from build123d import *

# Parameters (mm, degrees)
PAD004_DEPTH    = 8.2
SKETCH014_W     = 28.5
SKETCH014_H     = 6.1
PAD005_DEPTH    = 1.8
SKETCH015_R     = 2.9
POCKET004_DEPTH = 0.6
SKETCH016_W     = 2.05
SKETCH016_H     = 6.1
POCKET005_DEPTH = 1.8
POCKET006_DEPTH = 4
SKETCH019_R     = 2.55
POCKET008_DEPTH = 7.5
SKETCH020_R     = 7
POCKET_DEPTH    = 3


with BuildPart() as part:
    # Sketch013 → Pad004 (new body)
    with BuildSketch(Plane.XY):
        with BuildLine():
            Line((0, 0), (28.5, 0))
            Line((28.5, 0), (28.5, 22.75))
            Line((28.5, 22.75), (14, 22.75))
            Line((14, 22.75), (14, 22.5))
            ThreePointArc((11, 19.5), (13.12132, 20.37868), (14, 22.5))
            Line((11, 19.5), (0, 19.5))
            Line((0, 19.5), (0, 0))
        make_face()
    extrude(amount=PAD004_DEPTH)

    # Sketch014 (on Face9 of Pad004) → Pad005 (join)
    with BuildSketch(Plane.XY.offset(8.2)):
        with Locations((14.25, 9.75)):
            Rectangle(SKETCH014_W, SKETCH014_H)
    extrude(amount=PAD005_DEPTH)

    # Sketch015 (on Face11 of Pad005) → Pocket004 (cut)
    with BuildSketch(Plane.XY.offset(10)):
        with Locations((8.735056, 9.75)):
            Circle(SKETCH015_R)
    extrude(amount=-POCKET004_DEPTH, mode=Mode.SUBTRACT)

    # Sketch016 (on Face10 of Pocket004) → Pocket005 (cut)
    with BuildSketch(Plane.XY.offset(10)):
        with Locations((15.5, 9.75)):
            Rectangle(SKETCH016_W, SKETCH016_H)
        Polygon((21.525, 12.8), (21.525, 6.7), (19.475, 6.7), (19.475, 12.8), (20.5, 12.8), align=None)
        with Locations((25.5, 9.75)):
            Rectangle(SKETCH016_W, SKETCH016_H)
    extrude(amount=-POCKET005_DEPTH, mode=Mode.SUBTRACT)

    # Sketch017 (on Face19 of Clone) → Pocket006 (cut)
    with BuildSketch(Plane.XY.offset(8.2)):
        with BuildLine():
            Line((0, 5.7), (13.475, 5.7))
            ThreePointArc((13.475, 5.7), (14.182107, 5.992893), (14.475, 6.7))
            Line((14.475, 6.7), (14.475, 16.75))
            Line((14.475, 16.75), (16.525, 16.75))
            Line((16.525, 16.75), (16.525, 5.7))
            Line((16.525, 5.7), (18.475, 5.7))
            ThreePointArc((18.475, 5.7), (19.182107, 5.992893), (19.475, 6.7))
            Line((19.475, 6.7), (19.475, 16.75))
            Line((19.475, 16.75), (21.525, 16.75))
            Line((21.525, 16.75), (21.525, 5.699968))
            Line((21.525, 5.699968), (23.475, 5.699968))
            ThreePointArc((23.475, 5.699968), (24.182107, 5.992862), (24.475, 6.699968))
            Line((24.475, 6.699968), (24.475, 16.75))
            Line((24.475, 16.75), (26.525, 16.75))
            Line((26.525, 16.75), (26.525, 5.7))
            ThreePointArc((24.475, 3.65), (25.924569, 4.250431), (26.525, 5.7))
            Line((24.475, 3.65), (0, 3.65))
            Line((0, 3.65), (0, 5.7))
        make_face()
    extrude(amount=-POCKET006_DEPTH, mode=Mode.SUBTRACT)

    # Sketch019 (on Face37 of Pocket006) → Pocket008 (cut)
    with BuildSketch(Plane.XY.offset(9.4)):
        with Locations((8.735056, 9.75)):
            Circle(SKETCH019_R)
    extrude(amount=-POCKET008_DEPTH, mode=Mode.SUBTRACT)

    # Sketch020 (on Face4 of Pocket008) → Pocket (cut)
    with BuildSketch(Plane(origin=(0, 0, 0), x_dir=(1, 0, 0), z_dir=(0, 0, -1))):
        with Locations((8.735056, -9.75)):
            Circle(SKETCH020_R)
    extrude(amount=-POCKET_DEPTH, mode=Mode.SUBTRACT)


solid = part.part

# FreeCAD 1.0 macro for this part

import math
import FreeCAD as App
import Part
import Sketcher
from FreeCAD import Vector

doc = App.newDocument("Part")
params = doc.addObject("Spreadsheet::Sheet", "Params")
for row, (alias, value) in enumerate([
    ("sketch1_radius", "3.000001 mm"),
    ("sketch1_width", "11 mm"),
    ("sketch1_width2", "28.5 mm"),
    ("sketch1_height", "19.5 mm"),
    ("sketch1_height2", "22.75 mm"),
    ("pad1_length", "8.2 mm"),
    ("sketch2_width", "28.5 mm"),
    ("sketch2_height", "6.1 mm"),
    ("pad2_length", "1.8 mm"),
    ("sketch3_diameter", "5.8 mm"),
    ("pocket1_length", "0.6 mm"),
    ("sketch4_height", "6.1 mm"),
    ("sketch4_width", "2.05 mm"),
    ("pocket2_length", "1.8 mm"),
    ("sketch5_radius", "1.000001 mm"),
    ("sketch5_radius2", "2.05 mm"),
    ("sketch5_height", "11.05 mm"),
    ("pocket3_length", "4 mm"),
    ("sketch6_diameter", "5.1 mm"),
    ("pocket4_length", "7.5 mm"),
    ("sketch7_diameter", "14 mm"),
    ("pocket5_length", "3 mm"),
], start=1):
    params.set(f"A{row}", alias)
    params.set(f"B{row}", "=" + value)
    params.setAlias(f"B{row}", alias)

body = doc.addObject("PartDesign::Body", "Body")

sketch1 = body.newObject("Sketcher::SketchObject", "Sketch")
sketch1.AttachmentSupport = (doc.getObject("XY_Plane"), [""])
sketch1.MapMode = "FlatFace"
sketch1.addGeometry(Part.LineSegment(Vector(0, 0, 0), Vector(28.5, 0, 0)), False)
sketch1.addGeometry(Part.LineSegment(Vector(28.5, 0, 0), Vector(28.5, 22.75, 0)), False)
sketch1.addGeometry(Part.LineSegment(Vector(28.5, 22.75, 0), Vector(14, 22.75, 0)), False)
sketch1.addGeometry(Part.LineSegment(Vector(14, 22.75, 0), Vector(14, 22.5, 0)), False)
sketch1.addGeometry(Part.ArcOfCircle(Part.Circle(Vector(10.999999, 22.500001, 0), Vector(0, 0, 1), 3.000001), math.radians(-89.999978), math.radians(-0.000022)), False)
sketch1.addGeometry(Part.LineSegment(Vector(11, 19.5, 0), Vector(0, 19.5, 0)), False)
sketch1.addGeometry(Part.LineSegment(Vector(0, 19.5, 0), Vector(0, 0, 0)), False)
sketch1.addConstraint(Sketcher.Constraint("Coincident", 0, 2, 1, 1))
sketch1.addConstraint(Sketcher.Constraint("Coincident", 1, 2, 2, 1))
sketch1.addConstraint(Sketcher.Constraint("Coincident", 2, 2, 3, 1))
sketch1.addConstraint(Sketcher.Constraint("Tangent", 3, 2, 4, 2))
sketch1.addConstraint(Sketcher.Constraint("Tangent", 4, 1, 5, 1))
sketch1.addConstraint(Sketcher.Constraint("Coincident", 5, 2, 6, 1))
sketch1.addConstraint(Sketcher.Constraint("Coincident", 6, 2, 0, 1))
sketch1.addConstraint(Sketcher.Constraint("Horizontal", 0))
sketch1.addConstraint(Sketcher.Constraint("Vertical", 1))
sketch1.addConstraint(Sketcher.Constraint("Horizontal", 2))
sketch1.addConstraint(Sketcher.Constraint("Vertical", 3))
sketch1.addConstraint(Sketcher.Constraint("Horizontal", 5))
sketch1.addConstraint(Sketcher.Constraint("Vertical", 6))
sketch1.addConstraint(Sketcher.Constraint("Coincident", 6, 2, -1, 1))
sketch1.addConstraint(Sketcher.Constraint("Radius", 4, 3.000001))
sketch1.addConstraint(Sketcher.Constraint("DistanceX", 5, 2, 5, 1, 11.0))
sketch1.addConstraint(Sketcher.Constraint("DistanceX", 0, 1, 0, 2, 28.5))
sketch1.addConstraint(Sketcher.Constraint("DistanceY", 6, 2, 6, 1, 19.5))
sketch1.addConstraint(Sketcher.Constraint("DistanceY", 1, 1, 1, 2, 22.75))
sketch1.setExpression("Constraints[14]", "Params.sketch1_radius")
sketch1.setExpression("Constraints[15]", "Params.sketch1_width")
sketch1.setExpression("Constraints[16]", "Params.sketch1_width2")
sketch1.setExpression("Constraints[17]", "Params.sketch1_height")
sketch1.setExpression("Constraints[18]", "Params.sketch1_height2")
pad1 = body.newObject("PartDesign::Pad", "Pad")
pad1.Profile = sketch1
pad1.setExpression("Length", "Params.pad1_length")

sketch2 = body.newObject("Sketcher::SketchObject", "Sketch001")
sketch2.AttachmentSupport = (doc.getObject("XY_Plane"), [""])
sketch2.MapMode = "FlatFace"
sketch2.AttachmentOffset = App.Placement(Vector(0, 0, 8.2), App.Rotation())
sketch2.addGeometry(Part.LineSegment(Vector(0, 12.8, 0), Vector(0, 6.7, 0)), False)
sketch2.addGeometry(Part.LineSegment(Vector(0, 6.7, 0), Vector(28.5, 6.7, 0)), False)
sketch2.addGeometry(Part.LineSegment(Vector(28.5, 6.7, 0), Vector(28.5, 12.8, 0)), False)
sketch2.addGeometry(Part.LineSegment(Vector(28.5, 12.8, 0), Vector(0, 12.8, 0)), False)
sketch2.addConstraint(Sketcher.Constraint("Coincident", 0, 2, 1, 1))
sketch2.addConstraint(Sketcher.Constraint("Coincident", 1, 2, 2, 1))
sketch2.addConstraint(Sketcher.Constraint("Coincident", 2, 2, 3, 1))
sketch2.addConstraint(Sketcher.Constraint("Coincident", 3, 2, 0, 1))
sketch2.addConstraint(Sketcher.Constraint("Vertical", 0))
sketch2.addConstraint(Sketcher.Constraint("Horizontal", 1))
sketch2.addConstraint(Sketcher.Constraint("Vertical", 2))
sketch2.addConstraint(Sketcher.Constraint("Horizontal", 3))
sketch2.addConstraint(Sketcher.Constraint("PointOnObject", 0, 2, -2))
sketch2.addConstraint(Sketcher.Constraint("DistanceX", 1, 1, 1, 2, 28.5))
sketch2.addConstraint(Sketcher.Constraint("DistanceY", 0, 2, 0, 1, 6.1))
sketch2.addConstraint(Sketcher.Constraint("DistanceY", -1, 1, 0, 2, 6.7))
sketch2.setExpression("Constraints[9]", "Params.sketch2_width")
sketch2.setExpression("Constraints[10]", "Params.sketch2_height")
pad2 = body.newObject("PartDesign::Pad", "Pad001")
pad2.Profile = sketch2
pad2.setExpression("Length", "Params.pad2_length")

sketch3 = body.newObject("Sketcher::SketchObject", "Sketch002")
sketch3.AttachmentSupport = (doc.getObject("XY_Plane"), [""])
sketch3.MapMode = "FlatFace"
sketch3.AttachmentOffset = App.Placement(Vector(0, 0, 10), App.Rotation())
sketch3.addGeometry(Part.Circle(Vector(8.735056, 9.75, 0), Vector(0, 0, 1), 2.9), False)
sketch3.addConstraint(Sketcher.Constraint("Diameter", 0, 5.8))
sketch3.addConstraint(Sketcher.Constraint("DistanceY", -1, 1, 0, 3, 9.75))
sketch3.addConstraint(Sketcher.Constraint("DistanceX", -1, 1, 0, 3, 8.735056))
sketch3.setExpression("Constraints[0]", "Params.sketch3_diameter")
pocket1 = body.newObject("PartDesign::Pocket", "Pocket")
pocket1.Profile = sketch3
pocket1.setExpression("Length", "Params.pocket1_length")

sketch4 = body.newObject("Sketcher::SketchObject", "Sketch003")
sketch4.AttachmentSupport = (doc.getObject("XY_Plane"), [""])
sketch4.MapMode = "FlatFace"
sketch4.AttachmentOffset = App.Placement(Vector(0, 0, 10), App.Rotation())
sketch4.addGeometry(Part.LineSegment(Vector(14.475, 12.8, 0), Vector(14.475, 6.7, 0)), False)
sketch4.addGeometry(Part.LineSegment(Vector(14.475, 6.7, 0), Vector(16.525, 6.7, 0)), False)
sketch4.addGeometry(Part.LineSegment(Vector(16.525, 6.7, 0), Vector(16.525, 12.8, 0)), False)
sketch4.addGeometry(Part.LineSegment(Vector(16.525, 12.8, 0), Vector(14.475, 12.8, 0)), False)
sketch4.addGeometry(Part.LineSegment(Vector(21.525, 6.7, 0), Vector(21.525, 12.8, 0)), False)
sketch4.addGeometry(Part.LineSegment(Vector(21.525, 12.8, 0), Vector(19.475, 12.8, 0)), False)
sketch4.addGeometry(Part.LineSegment(Vector(19.475, 12.8, 0), Vector(19.475, 6.7, 0)), False)
sketch4.addGeometry(Part.LineSegment(Vector(19.475, 6.7, 0), Vector(21.525, 6.7, 0)), False)
sketch4.addGeometry(Part.LineSegment(Vector(24.475, 12.8, 0), Vector(24.475, 6.7, 0)), False)
sketch4.addGeometry(Part.LineSegment(Vector(24.475, 6.7, 0), Vector(26.525, 6.7, 0)), False)
sketch4.addGeometry(Part.LineSegment(Vector(26.525, 6.7, 0), Vector(26.525, 12.8, 0)), False)
sketch4.addGeometry(Part.LineSegment(Vector(26.525, 12.8, 0), Vector(24.475, 12.8, 0)), False)
sketch4.addConstraint(Sketcher.Constraint("Coincident", 0, 2, 1, 1))
sketch4.addConstraint(Sketcher.Constraint("Coincident", 1, 2, 2, 1))
sketch4.addConstraint(Sketcher.Constraint("Coincident", 2, 2, 3, 1))
sketch4.addConstraint(Sketcher.Constraint("Coincident", 3, 2, 0, 1))
sketch4.addConstraint(Sketcher.Constraint("Coincident", 4, 2, 5, 1))
sketch4.addConstraint(Sketcher.Constraint("Coincident", 5, 2, 6, 1))
sketch4.addConstraint(Sketcher.Constraint("Coincident", 6, 2, 7, 1))
sketch4.addConstraint(Sketcher.Constraint("Coincident", 7, 2, 4, 1))
sketch4.addConstraint(Sketcher.Constraint("Coincident", 8, 2, 9, 1))
sketch4.addConstraint(Sketcher.Constraint("Coincident", 9, 2, 10, 1))
sketch4.addConstraint(Sketcher.Constraint("Coincident", 10, 2, 11, 1))
sketch4.addConstraint(Sketcher.Constraint("Coincident", 11, 2, 8, 1))
sketch4.addConstraint(Sketcher.Constraint("Vertical", 0))
sketch4.addConstraint(Sketcher.Constraint("Horizontal", 1))
sketch4.addConstraint(Sketcher.Constraint("Vertical", 2))
sketch4.addConstraint(Sketcher.Constraint("Horizontal", 3))
sketch4.addConstraint(Sketcher.Constraint("Vertical", 4))
sketch4.addConstraint(Sketcher.Constraint("Horizontal", 5))
sketch4.addConstraint(Sketcher.Constraint("Vertical", 6))
sketch4.addConstraint(Sketcher.Constraint("Horizontal", 7))
sketch4.addConstraint(Sketcher.Constraint("Vertical", 8))
sketch4.addConstraint(Sketcher.Constraint("Horizontal", 9))
sketch4.addConstraint(Sketcher.Constraint("Vertical", 10))
sketch4.addConstraint(Sketcher.Constraint("Horizontal", 11))
sketch4.addConstraint(Sketcher.Constraint("Horizontal", 3, 2, 4, 2))
sketch4.addConstraint(Sketcher.Constraint("Horizontal", 1, 2, 6, 2))
sketch4.addConstraint(Sketcher.Constraint("Horizontal", 7, 2, 8, 2))
sketch4.addConstraint(Sketcher.Constraint("Horizontal", 5, 2, 10, 2))
sketch4.addConstraint(Sketcher.Constraint("Equal", 3, 5))
sketch4.addConstraint(Sketcher.Constraint("Equal", 7, 9))
sketch4.addConstraint(Sketcher.Constraint("DistanceY", 0, 2, 0, 1, 6.1))
sketch4.addConstraint(Sketcher.Constraint("DistanceX", 2, 2, 4, 2, 5.0))
sketch4.addConstraint(Sketcher.Constraint("DistanceX", 6, 2, 8, 2, 5.0))
sketch4.addConstraint(Sketcher.Constraint("DistanceX", 1, 1, 1, 2, 2.05))
sketch4.addConstraint(Sketcher.Constraint("DistanceY", -1, 1, 0, 2, 6.7))
sketch4.addConstraint(Sketcher.Constraint("DistanceX", -1, 1, 0, 2, 14.475))
sketch4.setExpression("Constraints[30]", "Params.sketch4_height")
sketch4.setExpression("Constraints[33]", "Params.sketch4_width")
pocket2 = body.newObject("PartDesign::Pocket", "Pocket001")
pocket2.Profile = sketch4
pocket2.setExpression("Length", "Params.pocket2_length")

sketch5 = body.newObject("Sketcher::SketchObject", "Sketch004")
sketch5.AttachmentSupport = (doc.getObject("XY_Plane"), [""])
sketch5.MapMode = "FlatFace"
sketch5.AttachmentOffset = App.Placement(Vector(0, 0, 8.2), App.Rotation())
sketch5.addGeometry(Part.LineSegment(Vector(13.475, 5.7, 0), Vector(0, 5.7, 0)), False)
sketch5.addGeometry(Part.LineSegment(Vector(0, 5.7, 0), Vector(0, 3.65, 0)), False)
sketch5.addGeometry(Part.LineSegment(Vector(0, 3.65, 0), Vector(24.475, 3.65, 0)), False)
sketch5.addGeometry(Part.ArcOfCircle(Part.Circle(Vector(24.475, 5.7, 0), Vector(0, 0, 1), 2.05), math.radians(-90.000009), math.radians(0.000009)), False)
sketch5.addGeometry(Part.LineSegment(Vector(26.525, 5.7, 0), Vector(26.525, 16.75, 0)), False)
sketch5.addGeometry(Part.LineSegment(Vector(26.525, 16.75, 0), Vector(24.475, 16.75, 0)), False)
sketch5.addGeometry(Part.LineSegment(Vector(24.475, 16.75, 0), Vector(24.475, 6.699968, 0)), False)
sketch5.addGeometry(Part.ArcOfCircle(Part.Circle(Vector(23.474999, 6.699969, 0), Vector(0, 0, 1), 1.000001), math.radians(-89.999945), math.radians(-0.000055)), False)
sketch5.addGeometry(Part.LineSegment(Vector(23.475, 5.699968, 0), Vector(21.525, 5.699968, 0)), False)
sketch5.addGeometry(Part.LineSegment(Vector(21.525, 5.699968, 0), Vector(21.525, 16.75, 0)), False)
sketch5.addGeometry(Part.LineSegment(Vector(21.525, 16.75, 0), Vector(19.475, 16.75, 0)), False)
sketch5.addGeometry(Part.LineSegment(Vector(19.475, 16.75, 0), Vector(19.475, 6.7, 0)), False)
sketch5.addGeometry(Part.ArcOfCircle(Part.Circle(Vector(18.475001, 6.699999, 0), Vector(0, 0, 1), 0.999999), math.radians(-90.000043), math.radians(0.000043)), False)
sketch5.addGeometry(Part.LineSegment(Vector(18.475, 5.7, 0), Vector(16.525, 5.7, 0)), False)
sketch5.addGeometry(Part.LineSegment(Vector(16.525, 5.7, 0), Vector(16.525, 16.75, 0)), False)
sketch5.addGeometry(Part.LineSegment(Vector(16.525, 16.75, 0), Vector(14.475, 16.75, 0)), False)
sketch5.addGeometry(Part.LineSegment(Vector(14.475, 16.75, 0), Vector(14.475, 6.7, 0)), False)
sketch5.addGeometry(Part.ArcOfCircle(Part.Circle(Vector(13.475001, 6.699999, 0), Vector(0, 0, 1), 0.999999), math.radians(-90.000043), math.radians(0.000043)), False)
sketch5.addConstraint(Sketcher.Constraint("Coincident", 0, 2, 1, 1))
sketch5.addConstraint(Sketcher.Constraint("Coincident", 1, 2, 2, 1))
sketch5.addConstraint(Sketcher.Constraint("Tangent", 2, 2, 3, 1))
sketch5.addConstraint(Sketcher.Constraint("Tangent", 3, 2, 4, 1))
sketch5.addConstraint(Sketcher.Constraint("Coincident", 4, 2, 5, 1))
sketch5.addConstraint(Sketcher.Constraint("Coincident", 5, 2, 6, 1))
sketch5.addConstraint(Sketcher.Constraint("Tangent", 6, 2, 7, 2))
sketch5.addConstraint(Sketcher.Constraint("Tangent", 7, 1, 8, 1))
sketch5.addConstraint(Sketcher.Constraint("Coincident", 8, 2, 9, 1))
sketch5.addConstraint(Sketcher.Constraint("Coincident", 9, 2, 10, 1))
sketch5.addConstraint(Sketcher.Constraint("Coincident", 10, 2, 11, 1))
sketch5.addConstraint(Sketcher.Constraint("Tangent", 11, 2, 12, 2))
sketch5.addConstraint(Sketcher.Constraint("Tangent", 12, 1, 13, 1))
sketch5.addConstraint(Sketcher.Constraint("Coincident", 13, 2, 14, 1))
sketch5.addConstraint(Sketcher.Constraint("Coincident", 14, 2, 15, 1))
sketch5.addConstraint(Sketcher.Constraint("Coincident", 15, 2, 16, 1))
sketch5.addConstraint(Sketcher.Constraint("Tangent", 16, 2, 17, 2))
sketch5.addConstraint(Sketcher.Constraint("Tangent", 17, 1, 0, 1))
sketch5.addConstraint(Sketcher.Constraint("Horizontal", 0))
sketch5.addConstraint(Sketcher.Constraint("Vertical", 1))
sketch5.addConstraint(Sketcher.Constraint("Horizontal", 2))
sketch5.addConstraint(Sketcher.Constraint("Vertical", 4))
sketch5.addConstraint(Sketcher.Constraint("Horizontal", 5))
sketch5.addConstraint(Sketcher.Constraint("Vertical", 6))
sketch5.addConstraint(Sketcher.Constraint("Horizontal", 8))
sketch5.addConstraint(Sketcher.Constraint("Vertical", 9))
sketch5.addConstraint(Sketcher.Constraint("Horizontal", 10))
sketch5.addConstraint(Sketcher.Constraint("Vertical", 11))
sketch5.addConstraint(Sketcher.Constraint("Horizontal", 13))
sketch5.addConstraint(Sketcher.Constraint("Vertical", 14))
sketch5.addConstraint(Sketcher.Constraint("Horizontal", 15))
sketch5.addConstraint(Sketcher.Constraint("Vertical", 16))
sketch5.addConstraint(Sketcher.Constraint("Equal", 7, 12))
sketch5.addConstraint(Sketcher.Constraint("Equal", 12, 17))
sketch5.addConstraint(Sketcher.Constraint("PointOnObject", 0, 2, -2))
sketch5.addConstraint(Sketcher.Constraint("Horizontal", 12, 3, 17, 3))
sketch5.addConstraint(Sketcher.Constraint("Horizontal", 3, 3, 0, 2))
sketch5.addConstraint(Sketcher.Constraint("Horizontal", 5, 2, 9, 2))
sketch5.addConstraint(Sketcher.Constraint("Horizontal", 10, 2, 14, 2))
sketch5.addConstraint(Sketcher.Constraint("Vertical", 2, 2, 5, 2))
sketch5.addConstraint(Sketcher.Constraint("Equal", 5, 10))
sketch5.addConstraint(Sketcher.Constraint("Equal", 8, 13))
sketch5.addConstraint(Sketcher.Constraint("Equal", 10, 15))
sketch5.addConstraint(Sketcher.Constraint("Radius", 7, 1.000001))
sketch5.addConstraint(Sketcher.Constraint("Radius", 3, 2.05))
sketch5.addConstraint(Sketcher.Constraint("DistanceX", 12, 3, 7, 3, 4.999998))
sketch5.addConstraint(Sketcher.Constraint("DistanceY", 4, 1, 4, 2, 11.05))
sketch5.addConstraint(Sketcher.Constraint("DistanceY", -1, 1, 3, 3, 5.7))
sketch5.addConstraint(Sketcher.Constraint("DistanceX", 0, 2, 0, 1, 13.475))
sketch5.addConstraint(Sketcher.Constraint("DistanceY", 6, 2, 6, 1, 10.050032))
sketch5.setExpression("Constraints[43]", "Params.sketch5_radius")
sketch5.setExpression("Constraints[44]", "Params.sketch5_radius2")
sketch5.setExpression("Constraints[46]", "Params.sketch5_height")
pocket3 = body.newObject("PartDesign::Pocket", "Pocket002")
pocket3.Profile = sketch5
pocket3.setExpression("Length", "Params.pocket3_length")

sketch6 = body.newObject("Sketcher::SketchObject", "Sketch005")
sketch6.AttachmentSupport = (doc.getObject("XY_Plane"), [""])
sketch6.MapMode = "FlatFace"
sketch6.AttachmentOffset = App.Placement(Vector(0, 0, 9.4), App.Rotation())
sketch6.addGeometry(Part.Circle(Vector(8.735056, 9.75, 0), Vector(0, 0, 1), 2.55), False)
sketch6.addConstraint(Sketcher.Constraint("Diameter", 0, 5.1))
sketch6.addConstraint(Sketcher.Constraint("DistanceY", -1, 1, 0, 3, 9.75))
sketch6.addConstraint(Sketcher.Constraint("DistanceX", -1, 1, 0, 3, 8.735056))
sketch6.setExpression("Constraints[0]", "Params.sketch6_diameter")
pocket4 = body.newObject("PartDesign::Pocket", "Pocket003")
pocket4.Profile = sketch6
pocket4.setExpression("Length", "Params.pocket4_length")

sketch7 = body.newObject("Sketcher::SketchObject", "Sketch006")
sketch7.AttachmentSupport = (doc.getObject("XY_Plane"), [""])
sketch7.MapMode = "FlatFace"
sketch7.addGeometry(Part.Circle(Vector(8.735056, 9.75, 0), Vector(0, 0, 1), 7), False)
sketch7.addConstraint(Sketcher.Constraint("Diameter", 0, 14.0))
sketch7.addConstraint(Sketcher.Constraint("DistanceY", -1, 1, 0, 3, 9.75))
sketch7.addConstraint(Sketcher.Constraint("DistanceX", -1, 1, 0, 3, 8.735056))
sketch7.setExpression("Constraints[0]", "Params.sketch7_diameter")
pocket5 = body.newObject("PartDesign::Pocket", "Pocket004")
pocket5.Profile = sketch7
pocket5.setExpression("Length", "Params.pocket5_length")
pocket5.Reversed = True

doc.recompute()
